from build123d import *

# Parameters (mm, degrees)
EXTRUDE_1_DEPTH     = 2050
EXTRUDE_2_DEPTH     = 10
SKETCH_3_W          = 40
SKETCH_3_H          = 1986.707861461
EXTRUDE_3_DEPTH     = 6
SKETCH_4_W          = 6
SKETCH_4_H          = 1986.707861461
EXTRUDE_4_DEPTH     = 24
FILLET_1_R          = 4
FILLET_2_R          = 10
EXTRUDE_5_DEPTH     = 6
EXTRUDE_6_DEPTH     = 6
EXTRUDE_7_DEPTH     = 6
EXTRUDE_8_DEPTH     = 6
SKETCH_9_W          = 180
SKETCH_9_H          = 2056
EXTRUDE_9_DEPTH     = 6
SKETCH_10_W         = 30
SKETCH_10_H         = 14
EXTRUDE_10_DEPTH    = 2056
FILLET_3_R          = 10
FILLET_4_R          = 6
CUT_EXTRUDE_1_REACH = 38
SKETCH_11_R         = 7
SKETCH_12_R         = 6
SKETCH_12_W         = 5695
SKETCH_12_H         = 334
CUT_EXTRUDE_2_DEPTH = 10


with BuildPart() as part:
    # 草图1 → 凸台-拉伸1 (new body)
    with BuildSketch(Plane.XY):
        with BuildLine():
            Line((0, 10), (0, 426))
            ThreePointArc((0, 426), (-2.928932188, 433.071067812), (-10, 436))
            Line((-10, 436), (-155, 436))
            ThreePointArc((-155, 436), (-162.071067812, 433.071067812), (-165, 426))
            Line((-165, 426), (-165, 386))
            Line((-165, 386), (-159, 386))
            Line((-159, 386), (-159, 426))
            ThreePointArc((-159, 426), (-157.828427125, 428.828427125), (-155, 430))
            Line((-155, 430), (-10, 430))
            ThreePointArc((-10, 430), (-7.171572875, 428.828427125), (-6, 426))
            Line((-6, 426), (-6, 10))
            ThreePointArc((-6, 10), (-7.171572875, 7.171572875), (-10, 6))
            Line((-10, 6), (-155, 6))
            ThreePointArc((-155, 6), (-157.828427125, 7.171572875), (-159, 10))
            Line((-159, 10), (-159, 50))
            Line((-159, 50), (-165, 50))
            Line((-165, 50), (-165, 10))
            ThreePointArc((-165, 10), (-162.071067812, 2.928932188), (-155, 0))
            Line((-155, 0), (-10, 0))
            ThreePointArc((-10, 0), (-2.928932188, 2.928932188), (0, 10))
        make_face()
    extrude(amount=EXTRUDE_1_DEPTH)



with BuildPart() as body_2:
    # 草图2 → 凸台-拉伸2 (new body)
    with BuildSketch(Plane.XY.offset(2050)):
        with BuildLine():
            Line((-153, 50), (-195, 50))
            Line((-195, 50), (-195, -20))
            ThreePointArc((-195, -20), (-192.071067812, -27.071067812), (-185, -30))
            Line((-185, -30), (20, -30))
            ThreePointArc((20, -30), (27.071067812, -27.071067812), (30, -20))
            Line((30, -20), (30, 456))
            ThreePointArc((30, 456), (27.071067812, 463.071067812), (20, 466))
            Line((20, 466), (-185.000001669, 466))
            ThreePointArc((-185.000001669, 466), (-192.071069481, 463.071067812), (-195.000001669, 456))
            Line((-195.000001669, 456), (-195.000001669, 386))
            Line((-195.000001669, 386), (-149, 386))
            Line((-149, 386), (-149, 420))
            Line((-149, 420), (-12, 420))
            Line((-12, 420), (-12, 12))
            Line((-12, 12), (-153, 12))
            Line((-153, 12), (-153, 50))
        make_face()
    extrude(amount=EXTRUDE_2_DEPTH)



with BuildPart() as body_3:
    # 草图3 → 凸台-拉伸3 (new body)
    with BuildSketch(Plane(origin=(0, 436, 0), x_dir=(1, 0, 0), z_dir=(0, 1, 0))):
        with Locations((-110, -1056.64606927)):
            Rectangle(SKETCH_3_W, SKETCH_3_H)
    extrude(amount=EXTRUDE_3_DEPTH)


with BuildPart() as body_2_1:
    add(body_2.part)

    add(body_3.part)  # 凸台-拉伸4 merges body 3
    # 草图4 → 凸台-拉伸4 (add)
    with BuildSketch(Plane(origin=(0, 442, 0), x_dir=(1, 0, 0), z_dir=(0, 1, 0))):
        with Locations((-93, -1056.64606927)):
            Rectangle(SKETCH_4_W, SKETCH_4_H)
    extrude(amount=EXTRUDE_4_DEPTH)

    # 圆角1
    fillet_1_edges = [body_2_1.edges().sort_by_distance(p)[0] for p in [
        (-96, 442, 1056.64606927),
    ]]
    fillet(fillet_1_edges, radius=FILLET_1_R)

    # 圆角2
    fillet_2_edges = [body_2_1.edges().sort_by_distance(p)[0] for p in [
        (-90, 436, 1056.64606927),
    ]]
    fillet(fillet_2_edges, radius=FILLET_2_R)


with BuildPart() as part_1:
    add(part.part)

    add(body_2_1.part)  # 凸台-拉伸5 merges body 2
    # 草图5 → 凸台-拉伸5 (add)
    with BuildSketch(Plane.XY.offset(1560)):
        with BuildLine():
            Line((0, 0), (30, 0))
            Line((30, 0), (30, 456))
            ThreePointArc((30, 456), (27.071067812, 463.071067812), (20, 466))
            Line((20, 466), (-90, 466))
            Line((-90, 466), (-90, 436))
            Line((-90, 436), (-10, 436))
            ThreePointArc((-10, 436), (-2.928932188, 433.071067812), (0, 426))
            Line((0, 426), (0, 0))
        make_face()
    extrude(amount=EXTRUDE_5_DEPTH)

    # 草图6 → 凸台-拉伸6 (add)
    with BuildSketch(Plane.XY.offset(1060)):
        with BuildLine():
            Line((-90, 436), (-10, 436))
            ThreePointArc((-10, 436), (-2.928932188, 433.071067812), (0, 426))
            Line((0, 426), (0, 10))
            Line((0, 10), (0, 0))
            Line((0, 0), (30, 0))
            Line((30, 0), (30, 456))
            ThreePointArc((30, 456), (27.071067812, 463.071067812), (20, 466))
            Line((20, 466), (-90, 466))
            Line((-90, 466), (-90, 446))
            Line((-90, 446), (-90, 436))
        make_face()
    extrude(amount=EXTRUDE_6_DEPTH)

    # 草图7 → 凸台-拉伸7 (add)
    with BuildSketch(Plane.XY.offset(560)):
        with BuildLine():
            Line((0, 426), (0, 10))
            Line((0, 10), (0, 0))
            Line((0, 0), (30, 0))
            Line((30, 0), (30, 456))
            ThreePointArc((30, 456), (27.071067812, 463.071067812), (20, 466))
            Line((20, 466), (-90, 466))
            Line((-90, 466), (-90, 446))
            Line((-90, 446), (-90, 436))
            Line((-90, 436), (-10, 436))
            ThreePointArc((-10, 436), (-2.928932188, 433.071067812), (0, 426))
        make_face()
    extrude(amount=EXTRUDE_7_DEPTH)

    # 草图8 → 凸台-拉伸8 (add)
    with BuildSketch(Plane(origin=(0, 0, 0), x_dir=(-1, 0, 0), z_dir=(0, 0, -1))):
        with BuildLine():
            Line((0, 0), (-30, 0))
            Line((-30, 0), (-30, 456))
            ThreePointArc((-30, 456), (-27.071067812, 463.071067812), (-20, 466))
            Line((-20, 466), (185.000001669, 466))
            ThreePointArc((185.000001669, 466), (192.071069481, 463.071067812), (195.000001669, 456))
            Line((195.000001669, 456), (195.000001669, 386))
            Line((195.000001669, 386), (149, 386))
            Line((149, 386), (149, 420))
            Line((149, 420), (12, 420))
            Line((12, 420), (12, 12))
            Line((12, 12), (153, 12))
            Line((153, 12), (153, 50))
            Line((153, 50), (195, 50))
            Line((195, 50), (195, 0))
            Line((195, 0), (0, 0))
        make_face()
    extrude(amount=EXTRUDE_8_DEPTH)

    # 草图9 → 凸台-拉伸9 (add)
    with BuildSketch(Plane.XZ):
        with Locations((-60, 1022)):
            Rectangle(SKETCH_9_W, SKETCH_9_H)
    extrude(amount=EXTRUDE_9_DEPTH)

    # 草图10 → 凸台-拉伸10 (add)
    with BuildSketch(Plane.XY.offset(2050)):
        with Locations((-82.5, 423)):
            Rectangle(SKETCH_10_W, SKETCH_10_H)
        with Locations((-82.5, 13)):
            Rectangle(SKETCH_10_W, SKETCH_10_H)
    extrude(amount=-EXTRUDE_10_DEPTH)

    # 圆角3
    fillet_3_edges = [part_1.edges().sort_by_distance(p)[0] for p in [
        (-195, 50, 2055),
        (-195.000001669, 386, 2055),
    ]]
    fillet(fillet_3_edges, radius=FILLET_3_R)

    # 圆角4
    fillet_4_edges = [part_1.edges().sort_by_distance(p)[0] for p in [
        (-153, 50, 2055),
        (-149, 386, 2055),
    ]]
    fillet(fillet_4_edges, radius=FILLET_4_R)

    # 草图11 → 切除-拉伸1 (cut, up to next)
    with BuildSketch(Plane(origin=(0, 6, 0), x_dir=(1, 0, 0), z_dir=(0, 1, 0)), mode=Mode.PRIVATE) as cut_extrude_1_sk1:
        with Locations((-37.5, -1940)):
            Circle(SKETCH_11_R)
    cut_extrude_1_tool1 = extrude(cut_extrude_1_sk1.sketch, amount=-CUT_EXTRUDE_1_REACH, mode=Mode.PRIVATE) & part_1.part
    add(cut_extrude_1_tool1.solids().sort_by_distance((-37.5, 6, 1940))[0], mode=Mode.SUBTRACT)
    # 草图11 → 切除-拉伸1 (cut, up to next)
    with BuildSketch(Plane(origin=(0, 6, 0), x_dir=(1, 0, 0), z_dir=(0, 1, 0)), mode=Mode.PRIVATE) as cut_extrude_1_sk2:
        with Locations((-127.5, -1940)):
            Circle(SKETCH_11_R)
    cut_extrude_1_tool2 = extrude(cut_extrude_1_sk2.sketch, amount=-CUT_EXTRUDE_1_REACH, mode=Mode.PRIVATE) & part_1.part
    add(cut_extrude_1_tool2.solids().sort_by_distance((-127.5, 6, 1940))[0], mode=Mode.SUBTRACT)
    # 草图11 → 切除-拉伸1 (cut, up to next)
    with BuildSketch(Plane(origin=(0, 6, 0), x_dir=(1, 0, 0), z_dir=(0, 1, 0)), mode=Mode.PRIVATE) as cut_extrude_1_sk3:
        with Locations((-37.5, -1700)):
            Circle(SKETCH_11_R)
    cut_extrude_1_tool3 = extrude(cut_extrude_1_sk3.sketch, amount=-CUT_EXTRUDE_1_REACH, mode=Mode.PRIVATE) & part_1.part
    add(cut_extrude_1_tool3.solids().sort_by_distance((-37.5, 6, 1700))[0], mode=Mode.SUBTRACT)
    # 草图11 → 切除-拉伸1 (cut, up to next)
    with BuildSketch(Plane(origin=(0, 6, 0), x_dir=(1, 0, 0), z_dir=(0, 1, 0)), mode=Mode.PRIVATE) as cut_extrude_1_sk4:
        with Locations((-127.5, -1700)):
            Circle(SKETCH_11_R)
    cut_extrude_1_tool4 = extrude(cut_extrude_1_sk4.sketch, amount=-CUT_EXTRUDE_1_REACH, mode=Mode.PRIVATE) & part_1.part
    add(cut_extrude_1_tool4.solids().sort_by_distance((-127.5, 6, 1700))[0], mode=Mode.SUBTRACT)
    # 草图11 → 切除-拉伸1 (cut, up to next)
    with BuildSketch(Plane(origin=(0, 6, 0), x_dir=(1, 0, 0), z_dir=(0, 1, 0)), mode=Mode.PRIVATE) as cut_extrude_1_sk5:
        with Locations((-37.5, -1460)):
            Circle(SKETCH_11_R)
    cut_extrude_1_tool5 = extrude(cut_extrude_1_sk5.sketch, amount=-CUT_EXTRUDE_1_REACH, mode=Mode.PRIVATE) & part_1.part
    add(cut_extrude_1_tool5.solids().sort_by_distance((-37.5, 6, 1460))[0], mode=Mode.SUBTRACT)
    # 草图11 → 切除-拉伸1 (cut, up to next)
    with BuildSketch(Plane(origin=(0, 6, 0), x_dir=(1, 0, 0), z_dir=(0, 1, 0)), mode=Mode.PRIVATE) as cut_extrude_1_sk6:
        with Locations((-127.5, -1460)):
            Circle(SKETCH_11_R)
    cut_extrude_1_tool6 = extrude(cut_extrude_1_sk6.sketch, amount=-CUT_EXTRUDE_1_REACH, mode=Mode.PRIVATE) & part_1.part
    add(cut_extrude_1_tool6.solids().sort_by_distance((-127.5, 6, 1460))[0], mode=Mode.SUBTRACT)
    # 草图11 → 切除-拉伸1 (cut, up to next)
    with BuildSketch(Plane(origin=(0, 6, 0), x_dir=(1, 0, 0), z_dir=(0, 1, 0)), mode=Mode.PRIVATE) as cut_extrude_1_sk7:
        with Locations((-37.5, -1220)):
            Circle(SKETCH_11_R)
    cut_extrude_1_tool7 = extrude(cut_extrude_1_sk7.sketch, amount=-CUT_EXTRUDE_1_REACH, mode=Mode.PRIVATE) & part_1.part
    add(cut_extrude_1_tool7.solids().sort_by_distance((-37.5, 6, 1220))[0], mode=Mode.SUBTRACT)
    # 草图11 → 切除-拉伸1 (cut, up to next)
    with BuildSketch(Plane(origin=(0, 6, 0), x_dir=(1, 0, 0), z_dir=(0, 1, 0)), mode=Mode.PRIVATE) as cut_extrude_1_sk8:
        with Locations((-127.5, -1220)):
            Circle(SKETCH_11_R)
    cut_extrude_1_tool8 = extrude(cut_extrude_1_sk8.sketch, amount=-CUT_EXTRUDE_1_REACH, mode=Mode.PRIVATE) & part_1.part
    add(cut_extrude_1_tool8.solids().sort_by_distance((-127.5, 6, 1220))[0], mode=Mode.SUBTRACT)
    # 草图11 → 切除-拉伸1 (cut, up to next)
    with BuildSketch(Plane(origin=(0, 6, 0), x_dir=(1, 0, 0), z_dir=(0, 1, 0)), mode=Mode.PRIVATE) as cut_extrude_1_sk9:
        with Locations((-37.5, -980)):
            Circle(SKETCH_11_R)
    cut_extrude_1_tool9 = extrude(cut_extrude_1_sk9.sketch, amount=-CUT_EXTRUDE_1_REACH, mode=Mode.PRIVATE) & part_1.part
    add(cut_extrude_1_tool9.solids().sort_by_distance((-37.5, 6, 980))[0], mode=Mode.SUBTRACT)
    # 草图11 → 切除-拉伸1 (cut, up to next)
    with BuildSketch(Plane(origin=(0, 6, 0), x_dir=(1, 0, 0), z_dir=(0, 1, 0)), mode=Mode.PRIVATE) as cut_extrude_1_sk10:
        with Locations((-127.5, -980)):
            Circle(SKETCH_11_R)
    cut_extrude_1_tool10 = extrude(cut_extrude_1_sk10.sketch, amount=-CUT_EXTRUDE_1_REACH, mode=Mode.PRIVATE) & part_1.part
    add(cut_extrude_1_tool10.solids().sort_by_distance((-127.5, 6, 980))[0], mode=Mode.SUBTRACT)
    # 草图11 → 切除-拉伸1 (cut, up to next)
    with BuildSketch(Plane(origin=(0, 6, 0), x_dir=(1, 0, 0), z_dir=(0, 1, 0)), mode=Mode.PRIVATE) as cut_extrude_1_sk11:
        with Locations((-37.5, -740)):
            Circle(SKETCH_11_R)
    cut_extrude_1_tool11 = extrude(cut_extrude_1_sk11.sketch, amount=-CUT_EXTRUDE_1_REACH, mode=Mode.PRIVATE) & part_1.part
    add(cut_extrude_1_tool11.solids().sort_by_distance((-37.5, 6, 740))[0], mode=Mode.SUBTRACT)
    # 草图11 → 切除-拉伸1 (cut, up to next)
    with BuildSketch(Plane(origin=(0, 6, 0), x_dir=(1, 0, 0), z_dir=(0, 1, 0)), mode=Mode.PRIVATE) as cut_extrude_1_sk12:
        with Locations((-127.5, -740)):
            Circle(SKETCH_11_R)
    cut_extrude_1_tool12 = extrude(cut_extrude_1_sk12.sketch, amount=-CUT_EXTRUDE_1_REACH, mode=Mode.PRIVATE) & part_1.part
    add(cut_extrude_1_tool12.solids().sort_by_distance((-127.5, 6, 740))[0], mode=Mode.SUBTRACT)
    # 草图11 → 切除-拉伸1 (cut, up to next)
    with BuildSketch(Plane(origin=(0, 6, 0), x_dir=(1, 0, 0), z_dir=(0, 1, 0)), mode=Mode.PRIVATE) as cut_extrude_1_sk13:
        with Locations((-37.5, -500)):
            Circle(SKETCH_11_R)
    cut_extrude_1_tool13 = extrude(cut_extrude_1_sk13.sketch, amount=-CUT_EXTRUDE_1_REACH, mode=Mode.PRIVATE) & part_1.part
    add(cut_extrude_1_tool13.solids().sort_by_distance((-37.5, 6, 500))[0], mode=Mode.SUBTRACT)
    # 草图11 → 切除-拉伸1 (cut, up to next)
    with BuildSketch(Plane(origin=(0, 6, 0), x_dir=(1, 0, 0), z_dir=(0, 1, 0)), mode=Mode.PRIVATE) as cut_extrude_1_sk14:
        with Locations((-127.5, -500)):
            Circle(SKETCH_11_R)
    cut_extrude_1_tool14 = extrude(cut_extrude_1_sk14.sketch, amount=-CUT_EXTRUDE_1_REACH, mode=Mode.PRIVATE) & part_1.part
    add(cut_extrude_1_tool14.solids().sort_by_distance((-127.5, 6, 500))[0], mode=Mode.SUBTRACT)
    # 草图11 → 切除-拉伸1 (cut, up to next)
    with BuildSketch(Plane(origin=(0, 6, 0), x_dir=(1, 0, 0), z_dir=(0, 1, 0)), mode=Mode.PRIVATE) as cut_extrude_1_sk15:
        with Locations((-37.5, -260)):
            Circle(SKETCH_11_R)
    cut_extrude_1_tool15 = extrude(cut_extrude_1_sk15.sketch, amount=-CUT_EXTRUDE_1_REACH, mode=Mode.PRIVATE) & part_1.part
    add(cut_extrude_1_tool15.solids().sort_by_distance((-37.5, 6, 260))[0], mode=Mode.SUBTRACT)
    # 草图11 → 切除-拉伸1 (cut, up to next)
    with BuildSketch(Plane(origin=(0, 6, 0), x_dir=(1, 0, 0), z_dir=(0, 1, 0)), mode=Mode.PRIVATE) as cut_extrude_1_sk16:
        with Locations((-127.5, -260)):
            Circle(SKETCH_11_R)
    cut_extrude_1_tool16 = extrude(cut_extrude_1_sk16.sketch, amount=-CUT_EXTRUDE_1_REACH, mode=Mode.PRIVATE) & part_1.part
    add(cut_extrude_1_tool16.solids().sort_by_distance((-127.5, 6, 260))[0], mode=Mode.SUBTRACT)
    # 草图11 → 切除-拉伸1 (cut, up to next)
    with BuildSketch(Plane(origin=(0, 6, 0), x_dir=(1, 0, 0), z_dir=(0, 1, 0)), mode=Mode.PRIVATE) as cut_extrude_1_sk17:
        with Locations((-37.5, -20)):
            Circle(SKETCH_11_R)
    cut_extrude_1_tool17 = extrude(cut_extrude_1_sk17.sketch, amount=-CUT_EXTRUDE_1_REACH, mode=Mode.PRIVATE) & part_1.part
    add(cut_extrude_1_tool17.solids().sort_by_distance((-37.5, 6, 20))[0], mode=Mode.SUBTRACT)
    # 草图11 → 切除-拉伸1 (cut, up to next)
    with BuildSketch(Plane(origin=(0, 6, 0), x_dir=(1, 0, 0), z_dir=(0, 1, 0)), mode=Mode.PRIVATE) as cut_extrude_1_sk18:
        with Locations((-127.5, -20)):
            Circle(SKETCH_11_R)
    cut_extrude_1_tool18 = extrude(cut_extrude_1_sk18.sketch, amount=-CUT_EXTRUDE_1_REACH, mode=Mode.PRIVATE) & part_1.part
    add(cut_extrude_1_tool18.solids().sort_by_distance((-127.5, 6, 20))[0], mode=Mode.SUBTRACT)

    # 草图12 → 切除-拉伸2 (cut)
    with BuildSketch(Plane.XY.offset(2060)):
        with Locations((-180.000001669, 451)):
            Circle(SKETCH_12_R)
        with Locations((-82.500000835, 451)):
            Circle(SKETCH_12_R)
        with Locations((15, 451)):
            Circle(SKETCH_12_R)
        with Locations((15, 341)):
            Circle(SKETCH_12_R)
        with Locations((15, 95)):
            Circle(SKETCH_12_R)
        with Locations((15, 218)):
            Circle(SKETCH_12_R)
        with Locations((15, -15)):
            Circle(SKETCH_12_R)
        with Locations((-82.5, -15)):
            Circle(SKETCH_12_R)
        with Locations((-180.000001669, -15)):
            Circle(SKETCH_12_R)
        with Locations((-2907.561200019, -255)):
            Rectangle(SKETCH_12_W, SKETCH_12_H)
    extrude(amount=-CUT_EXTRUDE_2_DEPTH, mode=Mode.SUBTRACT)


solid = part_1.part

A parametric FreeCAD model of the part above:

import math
import FreeCAD as App
import Part
import Sketcher

V = App.Vector


def edges_at(feature, points):
    """Names of the edges that pass closest to the given points."""
    edges = feature.Shape.Edges
    near = lambda p: min(range(len(edges)), key=lambda i: edges[i].distToShape(Part.Vertex(*p))[0])
    return sorted({f"Edge{near(p) + 1}" for p in points})


def add_polygon(sketch, points):
    """Adds a closed chain of lines whose ends are joined by coincident constraints."""
    first, n = sketch.GeometryCount, len(points)
    for a, b in zip(points, points[1:] + points[:1]):
        sketch.addGeometry(Part.LineSegment(App.Vector(*a, 0), App.Vector(*b, 0)), False)
    for i in range(n):
        sketch.addConstraint(Sketcher.Constraint("Coincident", first + i, 2, first + (i + 1) % n, 1))

doc = App.newDocument("Part")
body = doc.addObject("PartDesign::Body", "Body")

# Sketch on XY plane
sketch1 = doc.addObject("Sketcher::SketchObject", "Sketch")
body.addObject(sketch1)
sketch1.AttachmentSupport = (doc.XY_Plane, [""])
sketch1.MapMode = "FlatFace"
sketch1.addGeometry([
    Part.LineSegment(V(0, 10, 0), V(0, 426, 0)),  # 0
    Part.ArcOfCircle(Part.Circle(V(-10, 426, 0), V(0, 0, 1), 10), math.radians(0), math.radians(90)),  # 1
    Part.LineSegment(V(-10, 436, 0), V(-155, 436, 0)),  # 2
    Part.ArcOfCircle(Part.Circle(V(-155, 426, 0), V(0, 0, 1), 10), math.radians(90), math.radians(180)),  # 3
    Part.LineSegment(V(-165, 426, 0), V(-165, 386, 0)),  # 4
    Part.LineSegment(V(-165, 386, 0), V(-159, 386, 0)),  # 5
    Part.LineSegment(V(-159, 386, 0), V(-159, 426, 0)),  # 6
    Part.ArcOfCircle(Part.Circle(V(-155, 426, 0), V(0, 0, 1), 4), math.radians(90), math.radians(180)),  # 7
    Part.LineSegment(V(-155, 430, 0), V(-10, 430, 0)),  # 8
    Part.ArcOfCircle(Part.Circle(V(-10, 426, 0), V(0, 0, 1), 4), math.radians(0), math.radians(90)),  # 9
    Part.LineSegment(V(-6, 426, 0), V(-6, 10, 0)),  # 10
    Part.ArcOfCircle(Part.Circle(V(-10, 10, 0), V(0, 0, 1), 4), math.radians(-90), math.radians(0)),  # 11
    Part.LineSegment(V(-10, 6, 0), V(-155, 6, 0)),  # 12
    Part.ArcOfCircle(Part.Circle(V(-155, 10, 0), V(0, 0, 1), 4), math.radians(180), math.radians(270)),  # 13
    Part.LineSegment(V(-159, 10, 0), V(-159, 50, 0)),  # 14
    Part.LineSegment(V(-159, 50, 0), V(-165, 50, 0)),  # 15
    Part.LineSegment(V(-165, 50, 0), V(-165, 10, 0)),  # 16
    Part.ArcOfCircle(Part.Circle(V(-155, 10, 0), V(0, 0, 1), 10), math.radians(180), math.radians(270)),  # 17
    Part.LineSegment(V(-155, 0, 0), V(-10, 0, 0)),  # 18
    Part.ArcOfCircle(Part.Circle(V(-10, 10, 0), V(0, 0, 1), 10), math.radians(-90), math.radians(0)),  # 19
], False)
sketch1.addConstraint([
    Sketcher.Constraint("Tangent", 0, 2, 1, 1),
    Sketcher.Constraint("Tangent", 1, 2, 2, 1),
    Sketcher.Constraint("Tangent", 2, 2, 3, 1),
    Sketcher.Constraint("Tangent", 3, 2, 4, 1),
    Sketcher.Constraint("Coincident", 4, 2, 5, 1),
    Sketcher.Constraint("Coincident", 5, 2, 6, 1),
    Sketcher.Constraint("Tangent", 6, 2, 7, 2),
    Sketcher.Constraint("Tangent", 7, 1, 8, 1),
    Sketcher.Constraint("Tangent", 8, 2, 9, 2),
    Sketcher.Constraint("Tangent", 9, 1, 10, 1),
    Sketcher.Constraint("Tangent", 10, 2, 11, 2),
    Sketcher.Constraint("Tangent", 11, 1, 12, 1),
    Sketcher.Constraint("Tangent", 12, 2, 13, 2),
    Sketcher.Constraint("Tangent", 13, 1, 14, 1),
    Sketcher.Constraint("Coincident", 14, 2, 15, 1),
    Sketcher.Constraint("Coincident", 15, 2, 16, 1),
    Sketcher.Constraint("Tangent", 16, 2, 17, 1),
    Sketcher.Constraint("Tangent", 17, 2, 18, 1),
    Sketcher.Constraint("Tangent", 18, 2, 19, 1),
    Sketcher.Constraint("Tangent", 19, 2, 0, 1),
    Sketcher.Constraint("Vertical", 0),
    Sketcher.Constraint("Horizontal", 2),
    Sketcher.Constraint("Vertical", 4),
    Sketcher.Constraint("Horizontal", 5),
    Sketcher.Constraint("Vertical", 6),
    Sketcher.Constraint("Horizontal", 8),
    Sketcher.Constraint("Vertical", 10),
    Sketcher.Constraint("Horizontal", 12),
    Sketcher.Constraint("Vertical", 14),
    Sketcher.Constraint("Horizontal", 15),
    Sketcher.Constraint("Vertical", 16),
    Sketcher.Constraint("Horizontal", 18),
    Sketcher.Constraint("Coincident", 7, 3, 3, 3),
    Sketcher.Constraint("Coincident", 9, 3, 1, 3),
    Sketcher.Constraint("Coincident", 17, 3, 13, 3),
    Sketcher.Constraint("Coincident", 19, 3, 11, 3),
    Sketcher.Constraint("Equal", 1, 3),
    Sketcher.Constraint("Equal", 9, 11),
    Sketcher.Constraint("Equal", 11, 13),
    Sketcher.Constraint("PointOnObject", 0, 2, -2),
    Sketcher.Constraint("PointOnObject", 17, 2, -1),
    Sketcher.Constraint("Vertical", 7, 3, 13, 3),
    Sketcher.Constraint("Equal", 6, 14),
    Sketcher.Constraint("Radius", 1, 10.0),
    Sketcher.Constraint("Radius", 7, 4.0),
    Sketcher.Constraint("DistanceX", 2, 2, 2, 1, 145.0),
    Sketcher.Constraint("DistanceY", 0, 1, 0, 2, 416.0),
    Sketcher.Constraint("DistanceY", 4, 2, 4, 1, 40.0),
])
pad1 = doc.addObject("PartDesign::Pad", "Pad")
body.addObject(pad1)
pad1.Profile = sketch1
pad1.Length = 2050
body2 = doc.addObject("PartDesign::Body", "Body001")

# Sketch on XY plane
sketch2 = doc.addObject("Sketcher::SketchObject", "Sketch001")
body2.addObject(sketch2)
sketch2.AttachmentSupport = (doc.getObject("XY_Plane001"), [""])
sketch2.MapMode = "FlatFace"
sketch2.AttachmentOffset = App.Placement(V(0, 0, 2050), App.Rotation())
sketch2.addGeometry([
    Part.LineSegment(V(-153, 50, 0), V(-195, 50, 0)),  # 0
    Part.LineSegment(V(-195, 50, 0), V(-195, -20, 0)),  # 1
    Part.ArcOfCircle(Part.Circle(V(-185, -20, 0), V(0, 0, 1), 10), math.radians(180), math.radians(270)),  # 2
    Part.LineSegment(V(-185, -30, 0), V(20, -30, 0)),  # 3
    Part.ArcOfCircle(Part.Circle(V(20, -20, 0), V(0, 0, 1), 10), math.radians(-90), math.radians(0)),  # 4
    Part.LineSegment(V(30, -20, 0), V(30, 456, 0)),  # 5
    Part.ArcOfCircle(Part.Circle(V(20, 456, 0), V(0, 0, 1), 10), math.radians(0), math.radians(90)),  # 6
    Part.LineSegment(V(20, 466, 0), V(-185.000002, 466, 0)),  # 7
    Part.ArcOfCircle(Part.Circle(V(-185.000002, 456, 0), V(0, 0, 1), 10), math.radians(90), math.radians(180)),  # 8
    Part.LineSegment(V(-195.000002, 456, 0), V(-195.000002, 386, 0)),  # 9
    Part.LineSegment(V(-195.000002, 386, 0), V(-149, 386, 0)),  # 10
    Part.LineSegment(V(-149, 386, 0), V(-149, 420, 0)),  # 11
    Part.LineSegment(V(-149, 420, 0), V(-12, 420, 0)),  # 12
    Part.LineSegment(V(-12, 420, 0), V(-12, 12, 0)),  # 13
    Part.LineSegment(V(-12, 12, 0), V(-153, 12, 0)),  # 14
    Part.LineSegment(V(-153, 12, 0), V(-153, 50, 0)),  # 15
], False)
sketch2.addConstraint([
    Sketcher.Constraint("Coincident", 0, 2, 1, 1),
    Sketcher.Constraint("Tangent", 1, 2, 2, 1),
    Sketcher.Constraint("Tangent", 2, 2, 3, 1),
    Sketcher.Constraint("Tangent", 3, 2, 4, 1),
    Sketcher.Constraint("Tangent", 4, 2, 5, 1),
    Sketcher.Constraint("Tangent", 5, 2, 6, 1),
    Sketcher.Constraint("Tangent", 6, 2, 7, 1),
    Sketcher.Constraint("Tangent", 7, 2, 8, 1),
    Sketcher.Constraint("Tangent", 8, 2, 9, 1),
    Sketcher.Constraint("Coincident", 9, 2, 10, 1),
    Sketcher.Constraint("Coincident", 10, 2, 11, 1),
    Sketcher.Constraint("Coincident", 11, 2, 12, 1),
    Sketcher.Constraint("Coincident", 12, 2, 13, 1),
    Sketcher.Constraint("Coincident", 13, 2, 14, 1),
    Sketcher.Constraint("Coincident", 14, 2, 15, 1),
    Sketcher.Constraint("Coincident", 15, 2, 0, 1),
    Sketcher.Constraint("Horizontal", 0),
    Sketcher.Constraint("Vertical", 1),
    Sketcher.Constraint("Horizontal", 3),
    Sketcher.Constraint("Vertical", 5),
    Sketcher.Constraint("Horizontal", 7),
    Sketcher.Constraint("Vertical", 9),
    Sketcher.Constraint("Horizontal", 10),
    Sketcher.Constraint("Vertical", 11),
    Sketcher.Constraint("Horizontal", 12),
    Sketcher.Constraint("Vertical", 13),
    Sketcher.Constraint("Horizontal", 14),
    Sketcher.Constraint("Vertical", 15),
    Sketcher.Constraint("Equal", 2, 4),
    Sketcher.Constraint("Equal", 4, 6),
    Sketcher.Constraint("Equal", 6, 8),
    Sketcher.Constraint("Vertical", 2, 3, 8, 3),
    Sketcher.Constraint("Equal", 1, 9),
    Sketcher.Constraint("Radius", 2, 10.0),
    Sketcher.Constraint("DistanceX", 0, 2, 0, 1, 42.0),
    Sketcher.Constraint("DistanceX", 3, 1, 3, 2, 205.0),
    Sketcher.Constraint("DistanceX", 10, 1, 10, 2, 46.000002),
    Sketcher.Constraint("DistanceX", 12, 1, 12, 2, 137.0),
    Sketcher.Constraint("DistanceY", 1, 2, 1, 1, 70.0),
    Sketcher.Constraint("DistanceY", 5, 1, 5, 2, 476.0),
    Sketcher.Constraint("DistanceY", 11, 1, 11, 2, 34.0),
    Sketcher.Constraint("DistanceY", 13, 2, 13, 1, 408.0),
    Sketcher.Constraint("DistanceX", 2, 3, -1, 1, 185.0),
    Sketcher.Constraint("DistanceY", 2, 3, -1, 1, 20.0),
])
pad2 = doc.addObject("PartDesign::Pad", "Pad001")
body2.addObject(pad2)
pad2.Profile = sketch2
pad2.Length = 10
body3 = doc.addObject("PartDesign::Body", "Body002")

# Sketch on XZ plane
sketch3 = doc.addObject("Sketcher::SketchObject", "Sketch002")
body3.addObject(sketch3)
sketch3.AttachmentSupport = (doc.getObject("XZ_Plane002"), [""])
sketch3.MapMode = "FlatFace"
sketch3.AttachmentOffset = App.Placement(V(0, 0, -436), App.Rotation())
add_polygon(sketch3, [(-130, 63.292139), (-130, 2050), (-90, 2050), (-90, 63.292139)])  # lines 0-3
sketch3.addConstraint([
    Sketcher.Constraint("Vertical", 0),
    Sketcher.Constraint("Horizontal", 1),
    Sketcher.Constraint("Vertical", 2),
    Sketcher.Constraint("Horizontal", 3),
    Sketcher.Constraint("DistanceX", 1, 1, 1, 2, 40.0),
    Sketcher.Constraint("DistanceX", 0, 2, -1, 1, 130.0),
    Sketcher.Constraint("DistanceY", -1, 1, 0, 2, 2050.0),
    Sketcher.Constraint("DistanceY", 0, 1, 0, 2, 1986.707861),
])
pad3 = doc.addObject("PartDesign::Pad", "Pad002")
body3.addObject(pad3)
pad3.Profile = sketch3
pad3.Length = 6
pad3.Reversed = True
doc.recompute()

boolean = doc.addObject("PartDesign::Boolean", "Boolean")
body2.addObject(boolean)
boolean.Type = "Fuse"
boolean.addObjects([body3])

# Sketch on XZ plane
sketch4 = doc.addObject("Sketcher::SketchObject", "Sketch003")
body2.addObject(sketch4)
sketch4.AttachmentSupport = (doc.getObject("XZ_Plane001"), [""])
sketch4.MapMode = "FlatFace"
sketch4.AttachmentOffset = App.Placement(V(0, 0, -442), App.Rotation())
add_polygon(sketch4, [(-96, 63.292139), (-96, 2050), (-90, 2050), (-90, 63.292139)])  # lines 0-3
sketch4.addConstraint([
    Sketcher.Constraint("Vertical", 0),
    Sketcher.Constraint("Horizontal", 1),
    Sketcher.Constraint("Vertical", 2),
    Sketcher.Constraint("Horizontal", 3),
    Sketcher.Constraint("DistanceX", 1, 1, 1, 2, 6.0),
    Sketcher.Constraint("DistanceX", 0, 2, -1, 1, 96.0),
    Sketcher.Constraint("DistanceY", -1, 1, 0, 2, 2050.0),
    Sketcher.Constraint("DistanceY", 0, 1, 0, 2, 1986.707861),
])
pad4 = doc.addObject("PartDesign::Pad", "Pad003")
body2.addObject(pad4)
pad4.Profile = sketch4
pad4.Length = 24
pad4.Reversed = True
doc.recompute()

fillet = doc.addObject("PartDesign::Fillet", "Fillet")
body2.addObject(fillet)
fillet.Base = (pad4, edges_at(pad4, [(-96, 442, 1056.646)]))
fillet.Radius = 4
doc.recompute()

fillet2 = doc.addObject("PartDesign::Fillet", "Fillet001")
body2.addObject(fillet2)
fillet2.Base = (fillet, edges_at(fillet, [(-90, 436, 1056.646)]))
fillet2.Radius = 10
doc.recompute()

boolean2 = doc.addObject("PartDesign::Boolean", "Boolean001")
body.addObject(boolean2)
boolean2.Type = "Fuse"
boolean2.addObjects([body2])

# Sketch on XY plane
sketch5 = doc.addObject("Sketcher::SketchObject", "Sketch004")
body.addObject(sketch5)
sketch5.AttachmentSupport = (doc.XY_Plane, [""])
sketch5.MapMode = "FlatFace"
sketch5.AttachmentOffset = App.Placement(V(0, 0, 1560), App.Rotation())
sketch5.addGeometry([
    Part.LineSegment(V(0, 0, 0), V(30, 0, 0)),  # 0
    Part.LineSegment(V(30, 0, 0), V(30, 456, 0)),  # 1
    Part.ArcOfCircle(Part.Circle(V(20, 456, 0), V(0, 0, 1), 10), math.radians(0), math.radians(90)),  # 2
    Part.LineSegment(V(20, 466, 0), V(-90, 466, 0)),  # 3
    Part.LineSegment(V(-90, 466, 0), V(-90, 436, 0)),  # 4
    Part.LineSegment(V(-90, 436, 0), V(-10, 436, 0)),  # 5
    Part.ArcOfCircle(Part.Circle(V(-10, 426, 0), V(0, 0, 1), 10), math.radians(0), math.radians(90)),  # 6
    Part.LineSegment(V(0, 426, 0), V(0, 0, 0)),  # 7
], False)
sketch5.addConstraint([
    Sketcher.Constraint("Coincident", 0, 2, 1, 1),
    Sketcher.Constraint("Tangent", 1, 2, 2, 1),
    Sketcher.Constraint("Tangent", 2, 2, 3, 1),
    Sketcher.Constraint("Coincident", 3, 2, 4, 1),
    Sketcher.Constraint("Coincident", 4, 2, 5, 1),
    Sketcher.Constraint("Tangent", 5, 2, 6, 2),
    Sketcher.Constraint("Tangent", 6, 1, 7, 1),
    Sketcher.Constraint("Coincident", 7, 2, 0, 1),
    Sketcher.Constraint("Horizontal", 0),
    Sketcher.Constraint("Vertical", 1),
    Sketcher.Constraint("Horizontal", 3),
    Sketcher.Constraint("Vertical", 4),
    Sketcher.Constraint("Horizontal", 5),
    Sketcher.Constraint("Vertical", 7),
    Sketcher.Constraint("Coincident", 7, 2, -1, 1),
    Sketcher.Constraint("Equal", 2, 6),
    Sketcher.Constraint("Equal", 0, 4),
    Sketcher.Constraint("Radius", 2, 10.0),
    Sketcher.Constraint("DistanceX", 0, 1, 0, 2, 30.0),
    Sketcher.Constraint("DistanceX", 3, 2, 3, 1, 110.0),
    Sketcher.Constraint("DistanceY", 1, 1, 1, 2, 456.0),
])
pad5 = doc.addObject("PartDesign::Pad", "Pad004")
body.addObject(pad5)
pad5.Profile = sketch5
pad5.Length = 6

# Sketch on XY plane
sketch6 = doc.addObject("Sketcher::SketchObject", "Sketch005")
body.addObject(sketch6)
sketch6.AttachmentSupport = (doc.XY_Plane, [""])
sketch6.MapMode = "FlatFace"
sketch6.AttachmentOffset = App.Placement(V(0, 0, 1060), App.Rotation())
sketch6.addGeometry([
    Part.LineSegment(V(-90, 436, 0), V(-10, 436, 0)),  # 0
    Part.ArcOfCircle(Part.Circle(V(-10, 426, 0), V(0, 0, 1), 10), math.radians(0), math.radians(90)),  # 1
    Part.LineSegment(V(0, 426, 0), V(0, 0, 0)),  # 2
    Part.LineSegment(V(0, 0, 0), V(30, 0, 0)),  # 3
    Part.LineSegment(V(30, 0, 0), V(30, 456, 0)),  # 4
    Part.ArcOfCircle(Part.Circle(V(20, 456, 0), V(0, 0, 1), 10), math.radians(0), math.radians(90)),  # 5
    Part.LineSegment(V(20, 466, 0), V(-90, 466, 0)),  # 6
    Part.LineSegment(V(-90, 466, 0), V(-90, 436, 0)),  # 7
], False)
sketch6.addConstraint([
    Sketcher.Constraint("Tangent", 0, 2, 1, 2),
    Sketcher.Constraint("Tangent", 1, 1, 2, 1),
    Sketcher.Constraint("Coincident", 2, 2, 3, 1),
    Sketcher.Constraint("Coincident", 3, 2, 4, 1),
    Sketcher.Constraint("Tangent", 4, 2, 5, 1),
    Sketcher.Constraint("Tangent", 5, 2, 6, 1),
    Sketcher.Constraint("Coincident", 6, 2, 7, 1),
    Sketcher.Constraint("Coincident", 7, 2, 0, 1),
    Sketcher.Constraint("Horizontal", 0),
    Sketcher.Constraint("Vertical", 2),
    Sketcher.Constraint("Horizontal", 3),
    Sketcher.Constraint("Vertical", 4),
    Sketcher.Constraint("Horizontal", 6),
    Sketcher.Constraint("Vertical", 7),
    Sketcher.Constraint("Coincident", 2, 2, -1, 1),
    Sketcher.Constraint("Equal", 1, 5),
    Sketcher.Constraint("Equal", 3, 7),
    Sketcher.Constraint("Radius", 1, 10.0),
    Sketcher.Constraint("DistanceX", 0, 1, 0, 2, 80.0),
    Sketcher.Constraint("DistanceX", 3, 1, 3, 2, 30.0),
    Sketcher.Constraint("DistanceY", 2, 2, 2, 1, 426.0),
])
pad6 = doc.addObject("PartDesign::Pad", "Pad005")
body.addObject(pad6)
pad6.Profile = sketch6
pad6.Length = 6

# Sketch on XY plane
sketch7 = doc.addObject("Sketcher::SketchObject", "Sketch006")
body.addObject(sketch7)
sketch7.AttachmentSupport = (doc.XY_Plane, [""])
sketch7.MapMode = "FlatFace"
sketch7.AttachmentOffset = App.Placement(V(0, 0, 560), App.Rotation())
sketch7.addGeometry([
    Part.LineSegment(V(0, 426, 0), V(0, 0, 0)),  # 0
    Part.LineSegment(V(0, 0, 0), V(30, 0, 0)),  # 1
    Part.LineSegment(V(30, 0, 0), V(30, 456, 0)),  # 2
    Part.ArcOfCircle(Part.Circle(V(20, 456, 0), V(0, 0, 1), 10), math.radians(0), math.radians(90)),  # 3
    Part.LineSegment(V(20, 466, 0), V(-90, 466, 0)),  # 4
    Part.LineSegment(V(-90, 466, 0), V(-90, 436, 0)),  # 5
    Part.LineSegment(V(-90, 436, 0), V(-10, 436, 0)),  # 6
    Part.ArcOfCircle(Part.Circle(V(-10, 426, 0), V(0, 0, 1), 10), math.radians(0), math.radians(90)),  # 7
], False)
sketch7.addConstraint([
    Sketcher.Constraint("Coincident", 0, 2, 1, 1),
    Sketcher.Constraint("Coincident", 1, 2, 2, 1),
    Sketcher.Constraint("Tangent", 2, 2, 3, 1),
    Sketcher.Constraint("Tangent", 3, 2, 4, 1),
    Sketcher.Constraint("Coincident", 4, 2, 5, 1),
    Sketcher.Constraint("Coincident", 5, 2, 6, 1),
    Sketcher.Constraint("Tangent", 6, 2, 7, 2),
    Sketcher.Constraint("Tangent", 7, 1, 0, 1),
    Sketcher.Constraint("Vertical", 0),
    Sketcher.Constraint("Horizontal", 1),
    Sketcher.Constraint("Vertical", 2),
    Sketcher.Constraint("Horizontal", 4),
    Sketcher.Constraint("Vertical", 5),
    Sketcher.Constraint("Horizontal", 6),
    Sketcher.Constraint("Coincident", 0, 2, -1, 1),
    Sketcher.Constraint("Equal", 3, 7),
    Sketcher.Constraint("Equal", 1, 5),
    Sketcher.Constraint("Radius", 3, 10.0),
    Sketcher.Constraint("DistanceX", 1, 1, 1, 2, 30.0),
    Sketcher.Constraint("DistanceX", 4, 2, 4, 1, 110.0),
    Sketcher.Constraint("DistanceY", 0, 2, 0, 1, 426.0),
])
pad7 = doc.addObject("PartDesign::Pad", "Pad006")
body.addObject(pad7)
pad7.Profile = sketch7
pad7.Length = 6

# Sketch on XY plane
sketch8 = doc.addObject("Sketcher::SketchObject", "Sketch007")
body.addObject(sketch8)
sketch8.AttachmentSupport = (doc.XY_Plane, [""])
sketch8.MapMode = "FlatFace"
sketch8.addGeometry([
    Part.LineSegment(V(30, 456, 0), V(30, 0, 0)),  # 0
    Part.LineSegment(V(30, 0, 0), V(-195, 0, 0)),  # 1
    Part.LineSegment(V(-195, 0, 0), V(-195, 50, 0)),  # 2
    Part.LineSegment(V(-195, 50, 0), V(-153, 50, 0)),  # 3
    Part.LineSegment(V(-153, 50, 0), V(-153, 12, 0)),  # 4
    Part.LineSegment(V(-153, 12, 0), V(-12, 12, 0)),  # 5
    Part.LineSegment(V(-12, 12, 0), V(-12, 420, 0)),  # 6
    Part.LineSegment(V(-12, 420, 0), V(-149, 420, 0)),  # 7
    Part.LineSegment(V(-149, 420, 0), V(-149, 386, 0)),  # 8
    Part.LineSegment(V(-149, 386, 0), V(-195.000002, 386, 0)),  # 9
    Part.LineSegment(V(-195.000002, 386, 0), V(-195.000002, 456, 0)),  # 10
    Part.ArcOfCircle(Part.Circle(V(-185.000002, 456, 0), V(0, 0, 1), 10), math.radians(90), math.radians(180)),  # 11
    Part.LineSegment(V(-185.000002, 466, 0), V(20, 466, 0)),  # 12
    Part.ArcOfCircle(Part.Circle(V(20, 456, 0), V(0, 0, 1), 10), math.radians(0), math.radians(90)),  # 13
], False)
sketch8.addConstraint([
    Sketcher.Constraint("Coincident", 0, 2, 1, 1),
    Sketcher.Constraint("Coincident", 1, 2, 2, 1),
    Sketcher.Constraint("Coincident", 2, 2, 3, 1),
    Sketcher.Constraint("Coincident", 3, 2, 4, 1),
    Sketcher.Constraint("Coincident", 4, 2, 5, 1),
    Sketcher.Constraint("Coincident", 5, 2, 6, 1),
    Sketcher.Constraint("Coincident", 6, 2, 7, 1),
    Sketcher.Constraint("Coincident", 7, 2, 8, 1),
    Sketcher.Constraint("Coincident", 8, 2, 9, 1),
    Sketcher.Constraint("Coincident", 9, 2, 10, 1),
    Sketcher.Constraint("Tangent", 10, 2, 11, 2),
    Sketcher.Constraint("Tangent", 11, 1, 12, 1),
    Sketcher.Constraint("Tangent", 12, 2, 13, 2),
    Sketcher.Constraint("Tangent", 13, 1, 0, 1),
    Sketcher.Constraint("Vertical", 0),
    Sketcher.Constraint("Horizontal", 1),
    Sketcher.Constraint("Vertical", 2),
    Sketcher.Constraint("Horizontal", 3),
    Sketcher.Constraint("Vertical", 4),
    Sketcher.Constraint("Horizontal", 5),
    Sketcher.Constraint("Vertical", 6),
    Sketcher.Constraint("Horizontal", 7),
    Sketcher.Constraint("Vertical", 8),
    Sketcher.Constraint("Horizontal", 9),
    Sketcher.Constraint("Vertical", 10),
    Sketcher.Constraint("Horizontal", 12),
    Sketcher.Constraint("Equal", 11, 13),
    Sketcher.Constraint("PointOnObject", 0, 2, -1),
    Sketcher.Constraint("Vertical", 2, 2, 9, 2),
    Sketcher.Constraint("Radius", 11, 10.0),
    Sketcher.Constraint("DistanceX", 1, 2, 1, 1, 225.0),
    Sketcher.Constraint("DistanceX", 3, 1, 3, 2, 42.0),
    Sketcher.Constraint("DistanceX", 5, 1, 5, 2, 141.0),
    Sketcher.Constraint("DistanceX", 7, 2, 7, 1, 137.0),
    Sketcher.Constraint("DistanceY", 0, 2, 0, 1, 456.0),
    Sketcher.Constraint("DistanceY", 2, 1, 2, 2, 50.0),
    Sketcher.Constraint("DistanceY", 4, 2, 4, 1, 38.0),
    Sketcher.Constraint("DistanceY", 6, 1, 6, 2, 408.0),
    Sketcher.Constraint("DistanceY", 8, 2, 8, 1, 34.0),
    Sketcher.Constraint("DistanceX", 11, 3, -1, 1, 185.000002),
])
pad8 = doc.addObject("PartDesign::Pad", "Pad007")
body.addObject(pad8)
pad8.Profile = sketch8
pad8.Length = 6
pad8.Reversed = True

# Sketch on XZ plane
sketch9 = doc.addObject("Sketcher::SketchObject", "Sketch008")
body.addObject(sketch9)
sketch9.AttachmentSupport = (doc.XZ_Plane, [""])
sketch9.MapMode = "FlatFace"
add_polygon(sketch9, [(-150, 2050), (-150, -6), (30, -6), (30, 2050)])  # lines 0-3
sketch9.addConstraint([
    Sketcher.Constraint("Vertical", 0),
    Sketcher.Constraint("Horizontal", 1),
    Sketcher.Constraint("Vertical", 2),
    Sketcher.Constraint("Horizontal", 3),
    Sketcher.Constraint("DistanceX", 1, 1, 1, 2, 180.0),
    Sketcher.Constraint("DistanceY", 0, 2, 0, 1, 2056.0),
    Sketcher.Constraint("DistanceX", 0, 2, -1, 1, 150.0),
    Sketcher.Constraint("DistanceY", 0, 2, -1, 1, 6.0),
])
pad9 = doc.addObject("PartDesign::Pad", "Pad008")
body.addObject(pad9)
pad9.Profile = sketch9
pad9.Length = 6

# Sketch on XY plane
sketch10 = doc.addObject("Sketcher::SketchObject", "Sketch009")
body.addObject(sketch10)
sketch10.AttachmentSupport = (doc.XY_Plane, [""])
sketch10.MapMode = "FlatFace"
sketch10.AttachmentOffset = App.Placement(V(0, 0, 2050), App.Rotation())
add_polygon(sketch10, [(-97.5, 430), (-97.5, 416), (-67.5, 416), (-67.5, 430)])  # lines 0-3
add_polygon(sketch10, [(-97.5, 20), (-97.5, 6), (-67.5, 6), (-67.5, 20)])  # lines 4-7
sketch10.addConstraint([
    Sketcher.Constraint("Vertical", 0),
    Sketcher.Constraint("Horizontal", 1),
    Sketcher.Constraint("Vertical", 2),
    Sketcher.Constraint("Horizontal", 3),
    Sketcher.Constraint("Vertical", 4),
    Sketcher.Constraint("Horizontal", 5),
    Sketcher.Constraint("Vertical", 6),
    Sketcher.Constraint("Horizontal", 7),
    Sketcher.Constraint("Vertical", 3, 2, 4, 2),
    Sketcher.Constraint("Vertical", 2, 2, 5, 2),
    Sketcher.Constraint("Equal", 2, 4),
    Sketcher.Constraint("DistanceX", 1, 1, 1, 2, 30.0),
    Sketcher.Constraint("DistanceY", 0, 2, 0, 1, 14.0),
    Sketcher.Constraint("DistanceY", -1, 1, 0, 2, 416.0),
    Sketcher.Constraint("DistanceY", -1, 1, 4, 2, 6.0),
    Sketcher.Constraint("DistanceX", 0, 2, -1, 1, 97.5),
])
pad10 = doc.addObject("PartDesign::Pad", "Pad009")
body.addObject(pad10)
pad10.Profile = sketch10
pad10.Length = 2056
pad10.Reversed = True
doc.recompute()

fillet3 = doc.addObject("PartDesign::Fillet", "Fillet002")
body.addObject(fillet3)
fillet3.Base = (pad10, edges_at(pad10, [(-195, 50, 2055), (-195, 386, 2055)]))
fillet3.Radius = 10
doc.recompute()

fillet4 = doc.addObject("PartDesign::Fillet", "Fillet003")
body.addObject(fillet4)
fillet4.Base = (fillet3, edges_at(fillet3, [(-153, 50, 2055), (-149, 386, 2055)]))
fillet4.Radius = 6

# Sketch on XZ plane
sketch11 = doc.addObject("Sketcher::SketchObject", "Sketch010")
body.addObject(sketch11)
sketch11.AttachmentSupport = (doc.XZ_Plane, [""])
sketch11.MapMode = "FlatFace"
sketch11.AttachmentOffset = App.Placement(V(0, 0, -6), App.Rotation())
sketch11.addGeometry(Part.Circle(V(-37.5, 1940, 0), V(0, 0, 1), 7), False)
sketch11.addConstraint([
    Sketcher.Constraint("Diameter", 0, 14.0),
    Sketcher.Constraint("DistanceY", -1, 1, 0, 3, 1940.0),
    Sketcher.Constraint("DistanceX", 0, 3, -1, 1, 37.5),
])
pocket1 = doc.addObject("PartDesign::Pocket", "Pocket")
body.addObject(pocket1)
pocket1.Profile = sketch11
pocket1.Type = "UpToFirst"
pocket1.Reversed = True

# Sketch on XZ plane
sketch12 = doc.addObject("Sketcher::SketchObject", "Sketch011")
body.addObject(sketch12)
sketch12.AttachmentSupport = (doc.XZ_Plane, [""])
sketch12.MapMode = "FlatFace"
sketch12.AttachmentOffset = App.Placement(V(0, 0, -6), App.Rotation())
sketch12.addGeometry(Part.Circle(V(-127.5, 1940, 0), V(0, 0, 1), 7), False)
sketch12.addConstraint([
    Sketcher.Constraint("Diameter", 0, 14.0),
    Sketcher.Constraint("DistanceY", -1, 1, 0, 3, 1940.0),
    Sketcher.Constraint("DistanceX", 0, 3, -1, 1, 127.5),
])
pocket2 = doc.addObject("PartDesign::Pocket", "Pocket001")
body.addObject(pocket2)
pocket2.Profile = sketch12
pocket2.Type = "UpToFirst"
pocket2.Reversed = True

# Sketch on XZ plane
sketch13 = doc.addObject("Sketcher::SketchObject", "Sketch012")
body.addObject(sketch13)
sketch13.AttachmentSupport = (doc.XZ_Plane, [""])
sketch13.MapMode = "FlatFace"
sketch13.AttachmentOffset = App.Placement(V(0, 0, -6), App.Rotation())
sketch13.addGeometry(Part.Circle(V(-37.5, 1700, 0), V(0, 0, 1), 7), False)
sketch13.addConstraint([
    Sketcher.Constraint("Diameter", 0, 14.0),
    Sketcher.Constraint("DistanceY", -1, 1, 0, 3, 1700.0),
    Sketcher.Constraint("DistanceX", 0, 3, -1, 1, 37.5),
])
pocket3 = doc.addObject("PartDesign::Pocket", "Pocket002")
body.addObject(pocket3)
pocket3.Profile = sketch13
pocket3.Type = "UpToFirst"
pocket3.Reversed = True

# Sketch on XZ plane
sketch14 = doc.addObject("Sketcher::SketchObject", "Sketch013")
body.addObject(sketch14)
sketch14.AttachmentSupport = (doc.XZ_Plane, [""])
sketch14.MapMode = "FlatFace"
sketch14.AttachmentOffset = App.Placement(V(0, 0, -6), App.Rotation())
sketch14.addGeometry(Part.Circle(V(-127.5, 1700, 0), V(0, 0, 1), 7), False)
sketch14.addConstraint([
    Sketcher.Constraint("Diameter", 0, 14.0),
    Sketcher.Constraint("DistanceY", -1, 1, 0, 3, 1700.0),
    Sketcher.Constraint("DistanceX", 0, 3, -1, 1, 127.5),
])
pocket4 = doc.addObject("PartDesign::Pocket", "Pocket003")
body.addObject(pocket4)
pocket4.Profile = sketch14
pocket4.Type = "UpToFirst"
pocket4.Reversed = True

# Sketch on XZ plane
sketch15 = doc.addObject("Sketcher::SketchObject", "Sketch014")
body.addObject(sketch15)
sketch15.AttachmentSupport = (doc.XZ_Plane, [""])
sketch15.MapMode = "FlatFace"
sketch15.AttachmentOffset = App.Placement(V(0, 0, -6), App.Rotation())
sketch15.addGeometry(Part.Circle(V(-37.5, 1460, 0), V(0, 0, 1), 7), False)
sketch15.addConstraint([
    Sketcher.Constraint("Diameter", 0, 14.0),
    Sketcher.Constraint("DistanceY", -1, 1, 0, 3, 1460.0),
    Sketcher.Constraint("DistanceX", 0, 3, -1, 1, 37.5),
])
pocket5 = doc.addObject("PartDesign::Pocket", "Pocket004")
body.addObject(pocket5)
pocket5.Profile = sketch15
pocket5.Type = "UpToFirst"
pocket5.Reversed = True

# Sketch on XZ plane
sketch16 = doc.addObject("Sketcher::SketchObject", "Sketch015")
body.addObject(sketch16)
sketch16.AttachmentSupport = (doc.XZ_Plane, [""])
sketch16.MapMode = "FlatFace"
sketch16.AttachmentOffset = App.Placement(V(0, 0, -6), App.Rotation())
sketch16.addGeometry(Part.Circle(V(-127.5, 1460, 0), V(0, 0, 1), 7), False)
sketch16.addConstraint([
    Sketcher.Constraint("Diameter", 0, 14.0),
    Sketcher.Constraint("DistanceY", -1, 1, 0, 3, 1460.0),
    Sketcher.Constraint("DistanceX", 0, 3, -1, 1, 127.5),
])
pocket6 = doc.addObject("PartDesign::Pocket", "Pocket005")
body.addObject(pocket6)
pocket6.Profile = sketch16
pocket6.Type = "UpToFirst"
pocket6.Reversed = True

# Sketch on XZ plane
sketch17 = doc.addObject("Sketcher::SketchObject", "Sketch016")
body.addObject(sketch17)
sketch17.AttachmentSupport = (doc.XZ_Plane, [""])
sketch17.MapMode = "FlatFace"
sketch17.AttachmentOffset = App.Placement(V(0, 0, -6), App.Rotation())
sketch17.addGeometry(Part.Circle(V(-37.5, 1220, 0), V(0, 0, 1), 7), False)
sketch17.addConstraint([
    Sketcher.Constraint("Diameter", 0, 14.0),
    Sketcher.Constraint("DistanceY", -1, 1, 0, 3, 1220.0),
    Sketcher.Constraint("DistanceX", 0, 3, -1, 1, 37.5),
])
pocket7 = doc.addObject("PartDesign::Pocket", "Pocket006")
body.addObject(pocket7)
pocket7.Profile = sketch17
pocket7.Type = "UpToFirst"
pocket7.Reversed = True

# Sketch on XZ plane
sketch18 = doc.addObject("Sketcher::SketchObject", "Sketch017")
body.addObject(sketch18)
sketch18.AttachmentSupport = (doc.XZ_Plane, [""])
sketch18.MapMode = "FlatFace"
sketch18.AttachmentOffset = App.Placement(V(0, 0, -6), App.Rotation())
sketch18.addGeometry(Part.Circle(V(-127.5, 1220, 0), V(0, 0, 1), 7), False)
sketch18.addConstraint([
    Sketcher.Constraint("Diameter", 0, 14.0),
    Sketcher.Constraint("DistanceY", -1, 1, 0, 3, 1220.0),
    Sketcher.Constraint("DistanceX", 0, 3, -1, 1, 127.5),
])
pocket8 = doc.addObject("PartDesign::Pocket", "Pocket007")
body.addObject(pocket8)
pocket8.Profile = sketch18
pocket8.Type = "UpToFirst"
pocket8.Reversed = True

# Sketch on XZ plane
sketch19 = doc.addObject("Sketcher::SketchObject", "Sketch018")
body.addObject(sketch19)
sketch19.AttachmentSupport = (doc.XZ_Plane, [""])
sketch19.MapMode = "FlatFace"
sketch19.AttachmentOffset = App.Placement(V(0, 0, -6), App.Rotation())
sketch19.addGeometry(Part.Circle(V(-37.5, 980, 0), V(0, 0, 1), 7), False)
sketch19.addConstraint([
    Sketcher.Constraint("Diameter", 0, 14.0),
    Sketcher.Constraint("DistanceY", -1, 1, 0, 3, 980.0),
    Sketcher.Constraint("DistanceX", 0, 3, -1, 1, 37.5),
])
pocket9 = doc.addObject("PartDesign::Pocket", "Pocket008")
body.addObject(pocket9)
pocket9.Profile = sketch19
pocket9.Type = "UpToFirst"
pocket9.Reversed = True

# Sketch on XZ plane
sketch20 = doc.addObject("Sketcher::SketchObject", "Sketch019")
body.addObject(sketch20)
sketch20.AttachmentSupport = (doc.XZ_Plane, [""])
sketch20.MapMode = "FlatFace"
sketch20.AttachmentOffset = App.Placement(V(0, 0, -6), App.Rotation())
sketch20.addGeometry(Part.Circle(V(-127.5, 980, 0), V(0, 0, 1), 7), False)
sketch20.addConstraint([
    Sketcher.Constraint("Diameter", 0, 14.0),
    Sketcher.Constraint("DistanceY", -1, 1, 0, 3, 980.0),
    Sketcher.Constraint("DistanceX", 0, 3, -1, 1, 127.5),
])
pocket10 = doc.addObject("PartDesign::Pocket", "Pocket009")
body.addObject(pocket10)
pocket10.Profile = sketch20
pocket10.Type = "UpToFirst"
pocket10.Reversed = True

# Sketch on XZ plane
sketch21 = doc.addObject("Sketcher::SketchObject", "Sketch020")
body.addObject(sketch21)
sketch21.AttachmentSupport = (doc.XZ_Plane, [""])
sketch21.MapMode = "FlatFace"
sketch21.AttachmentOffset = App.Placement(V(0, 0, -6), App.Rotation())
sketch21.addGeometry(Part.Circle(V(-37.5, 740, 0), V(0, 0, 1), 7), False)
sketch21.addConstraint([
    Sketcher.Constraint("Diameter", 0, 14.0),
    Sketcher.Constraint("DistanceY", -1, 1, 0, 3, 740.0),
    Sketcher.Constraint("DistanceX", 0, 3, -1, 1, 37.5),
])
pocket11 = doc.addObject("PartDesign::Pocket", "Pocket010")
body.addObject(pocket11)
pocket11.Profile = sketch21
pocket11.Type = "UpToFirst"
pocket11.Reversed = True

# Sketch on XZ plane
sketch22 = doc.addObject("Sketcher::SketchObject", "Sketch021")
body.addObject(sketch22)
sketch22.AttachmentSupport = (doc.XZ_Plane, [""])
sketch22.MapMode = "FlatFace"
sketch22.AttachmentOffset = App.Placement(V(0, 0, -6), App.Rotation())
sketch22.addGeometry(Part.Circle(V(-127.5, 740, 0), V(0, 0, 1), 7), False)
sketch22.addConstraint([
    Sketcher.Constraint("Diameter", 0, 14.0),
    Sketcher.Constraint("DistanceY", -1, 1, 0, 3, 740.0),
    Sketcher.Constraint("DistanceX", 0, 3, -1, 1, 127.5),
])
pocket12 = doc.addObject("PartDesign::Pocket", "Pocket011")
body.addObject(pocket12)
pocket12.Profile = sketch22
pocket12.Type = "UpToFirst"
pocket12.Reversed = True

# Sketch on XZ plane
sketch23 = doc.addObject("Sketcher::SketchObject", "Sketch022")
body.addObject(sketch23)
sketch23.AttachmentSupport = (doc.XZ_Plane, [""])
sketch23.MapMode = "FlatFace"
sketch23.AttachmentOffset = App.Placement(V(0, 0, -6), App.Rotation())
sketch23.addGeometry(Part.Circle(V(-37.5, 500, 0), V(0, 0, 1), 7), False)
sketch23.addConstraint([
    Sketcher.Constraint("Diameter", 0, 14.0),
    Sketcher.Constraint("DistanceY", -1, 1, 0, 3, 500.0),
    Sketcher.Constraint("DistanceX", 0, 3, -1, 1, 37.5),
])
pocket13 = doc.addObject("PartDesign::Pocket", "Pocket012")
body.addObject(pocket13)
pocket13.Profile = sketch23
pocket13.Type = "UpToFirst"
pocket13.Reversed = True

# Sketch on XZ plane
sketch24 = doc.addObject("Sketcher::SketchObject", "Sketch023")
body.addObject(sketch24)
sketch24.AttachmentSupport = (doc.XZ_Plane, [""])
sketch24.MapMode = "FlatFace"
sketch24.AttachmentOffset = App.Placement(V(0, 0, -6), App.Rotation())
sketch24.addGeometry(Part.Circle(V(-127.5, 500, 0), V(0, 0, 1), 7), False)
sketch24.addConstraint([
    Sketcher.Constraint("Diameter", 0, 14.0),
    Sketcher.Constraint("DistanceY", -1, 1, 0, 3, 500.0),
    Sketcher.Constraint("DistanceX", 0, 3, -1, 1, 127.5),
])
pocket14 = doc.addObject("PartDesign::Pocket", "Pocket013")
body.addObject(pocket14)
pocket14.Profile = sketch24
pocket14.Type = "UpToFirst"
pocket14.Reversed = True

# Sketch on XZ plane
sketch25 = doc.addObject("Sketcher::SketchObject", "Sketch024")
body.addObject(sketch25)
sketch25.AttachmentSupport = (doc.XZ_Plane, [""])
sketch25.MapMode = "FlatFace"
sketch25.AttachmentOffset = App.Placement(V(0, 0, -6), App.Rotation())
sketch25.addGeometry(Part.Circle(V(-37.5, 260, 0), V(0, 0, 1), 7), False)
sketch25.addConstraint([
    Sketcher.Constraint("Diameter", 0, 14.0),
    Sketcher.Constraint("DistanceY", -1, 1, 0, 3, 260.0),
    Sketcher.Constraint("DistanceX", 0, 3, -1, 1, 37.5),
])
pocket15 = doc.addObject("PartDesign::Pocket", "Pocket014")
body.addObject(pocket15)
pocket15.Profile = sketch25
pocket15.Type = "UpToFirst"
pocket15.Reversed = True

# Sketch on XZ plane
sketch26 = doc.addObject("Sketcher::SketchObject", "Sketch025")
body.addObject(sketch26)
sketch26.AttachmentSupport = (doc.XZ_Plane, [""])
sketch26.MapMode = "FlatFace"
sketch26.AttachmentOffset = App.Placement(V(0, 0, -6), App.Rotation())
sketch26.addGeometry(Part.Circle(V(-127.5, 260, 0), V(0, 0, 1), 7), False)
sketch26.addConstraint([
    Sketcher.Constraint("Diameter", 0, 14.0),
    Sketcher.Constraint("DistanceY", -1, 1, 0, 3, 260.0),
    Sketcher.Constraint("DistanceX", 0, 3, -1, 1, 127.5),
])
pocket16 = doc.addObject("PartDesign::Pocket", "Pocket015")
body.addObject(pocket16)
pocket16.Profile = sketch26
pocket16.Type = "UpToFirst"
pocket16.Reversed = True

# Sketch on XZ plane
sketch27 = doc.addObject("Sketcher::SketchObject", "Sketch026")
body.addObject(sketch27)
sketch27.AttachmentSupport = (doc.XZ_Plane, [""])
sketch27.MapMode = "FlatFace"
sketch27.AttachmentOffset = App.Placement(V(0, 0, -6), App.Rotation())
sketch27.addGeometry(Part.Circle(V(-37.5, 20, 0), V(0, 0, 1), 7), False)
sketch27.addConstraint([
    Sketcher.Constraint("Diameter", 0, 14.0),
    Sketcher.Constraint("DistanceY", -1, 1, 0, 3, 20.0),
    Sketcher.Constraint("DistanceX", 0, 3, -1, 1, 37.5),
])
pocket17 = doc.addObject("PartDesign::Pocket", "Pocket016")
body.addObject(pocket17)
pocket17.Profile = sketch27
pocket17.Type = "UpToFirst"
pocket17.Reversed = True

# Sketch on XZ plane
sketch28 = doc.addObject("Sketcher::SketchObject", "Sketch027")
body.addObject(sketch28)
sketch28.AttachmentSupport = (doc.XZ_Plane, [""])
sketch28.MapMode = "FlatFace"
sketch28.AttachmentOffset = App.Placement(V(0, 0, -6), App.Rotation())
sketch28.addGeometry(Part.Circle(V(-127.5, 20, 0), V(0, 0, 1), 7), False)
sketch28.addConstraint([
    Sketcher.Constraint("Diameter", 0, 14.0),
    Sketcher.Constraint("DistanceY", -1, 1, 0, 3, 20.0),
    Sketcher.Constraint("DistanceX", 0, 3, -1, 1, 127.5),
])
pocket18 = doc.addObject("PartDesign::Pocket", "Pocket017")
body.addObject(pocket18)
pocket18.Profile = sketch28
pocket18.Type = "UpToFirst"
pocket18.Reversed = True

# Sketch on XY plane
sketch29 = doc.addObject("Sketcher::SketchObject", "Sketch028")
body.addObject(sketch29)
sketch29.AttachmentSupport = (doc.XY_Plane, [""])
sketch29.MapMode = "FlatFace"
sketch29.AttachmentOffset = App.Placement(V(0, 0, 2060), App.Rotation())
sketch29.addGeometry(Part.Circle(V(-180.000002, 451, 0), V(0, 0, 1), 6), False)  # 0
sketch29.addGeometry(Part.Circle(V(-82.500001, 451, 0), V(0, 0, 1), 6), False)  # 1
sketch29.addGeometry(Part.Circle(V(15, 451, 0), V(0, 0, 1), 6), False)  # 2
sketch29.addGeometry(Part.Circle(V(15, 341, 0), V(0, 0, 1), 6), False)  # 3
sketch29.addGeometry(Part.Circle(V(15, 95, 0), V(0, 0, 1), 6), False)  # 4
sketch29.addGeometry(Part.Circle(V(15, 218, 0), V(0, 0, 1), 6), False)  # 5
sketch29.addGeometry(Part.Circle(V(15, -15, 0), V(0, 0, 1), 6), False)  # 6
sketch29.addGeometry(Part.Circle(V(-82.5, -15, 0), V(0, 0, 1), 6), False)  # 7
sketch29.addGeometry(Part.Circle(V(-180.000002, -15, 0), V(0, 0, 1), 6), False)  # 8
add_polygon(sketch29, [(-5755.0612, -88), (-5755.0612, -422), (-60.0612, -422), (-60.0612, -88)])  # lines 9-12
sketch29.addConstraint([
    Sketcher.Constraint("Vertical", 9),
    Sketcher.Constraint("Horizontal", 10),
    Sketcher.Constraint("Vertical", 11),
    Sketcher.Constraint("Horizontal", 12),
    Sketcher.Constraint("Equal", 0, 1),
    Sketcher.Constraint("Equal", 1, 2),
    Sketcher.Constraint("Equal", 2, 3),
    Sketcher.Constraint("Equal", 3, 4),
    Sketcher.Constraint("Equal", 4, 5),
    Sketcher.Constraint("Equal", 5, 6),
    Sketcher.Constraint("Equal", 6, 7),
    Sketcher.Constraint("Equal", 7, 8),
    Sketcher.Constraint("Horizontal", 0, 3, 1, 3),
    Sketcher.Constraint("Horizontal", 1, 3, 2, 3),
    Sketcher.Constraint("Horizontal", 6, 3, 7, 3),
    Sketcher.Constraint("Horizontal", 7, 3, 8, 3),
    Sketcher.Constraint("Vertical", 2, 3, 3, 3),
    Sketcher.Constraint("Vertical", 3, 3, 4, 3),
    Sketcher.Constraint("Vertical", 4, 3, 5, 3),
    Sketcher.Constraint("Vertical", 5, 3, 6, 3),
    Sketcher.Constraint("Vertical", 1, 3, 7, 3),
    Sketcher.Constraint("Vertical", 0, 3, 8, 3),
    Sketcher.Constraint("Diameter", 0, 12.0),
    Sketcher.Constraint("DistanceX", 10, 1, 10, 2, 5695.0),
    Sketcher.Constraint("DistanceY", 9, 2, 9, 1, 334.0),
    Sketcher.Constraint("DistanceX", 0, 3, -1, 1, 180.000002),
    Sketcher.Constraint("DistanceY", -1, 1, 0, 3, 451.0),
    Sketcher.Constraint("DistanceX", -1, 1, 2, 3, 15.0),
    Sketcher.Constraint("DistanceY", -1, 1, 3, 3, 341.0),
    Sketcher.Constraint("DistanceY", -1, 1, 4, 3, 95.0),
    Sketcher.Constraint("DistanceY", -1, 1, 5, 3, 218.0),
    Sketcher.Constraint("DistanceY", 6, 3, -1, 1, 15.0),
    Sketcher.Constraint("DistanceY", 9, 2, -1, 1, 422.0),
    Sketcher.Constraint("DistanceX", 1, 3, -1, 1, 82.500001),
    Sketcher.Constraint("DistanceX", 9, 2, -1, 1, 5755.0612),
])
pocket19 = doc.addObject("PartDesign::Pocket", "Pocket018")
body.addObject(pocket19)
pocket19.Profile = sketch29
pocket19.Length = 10

doc.recompute()
